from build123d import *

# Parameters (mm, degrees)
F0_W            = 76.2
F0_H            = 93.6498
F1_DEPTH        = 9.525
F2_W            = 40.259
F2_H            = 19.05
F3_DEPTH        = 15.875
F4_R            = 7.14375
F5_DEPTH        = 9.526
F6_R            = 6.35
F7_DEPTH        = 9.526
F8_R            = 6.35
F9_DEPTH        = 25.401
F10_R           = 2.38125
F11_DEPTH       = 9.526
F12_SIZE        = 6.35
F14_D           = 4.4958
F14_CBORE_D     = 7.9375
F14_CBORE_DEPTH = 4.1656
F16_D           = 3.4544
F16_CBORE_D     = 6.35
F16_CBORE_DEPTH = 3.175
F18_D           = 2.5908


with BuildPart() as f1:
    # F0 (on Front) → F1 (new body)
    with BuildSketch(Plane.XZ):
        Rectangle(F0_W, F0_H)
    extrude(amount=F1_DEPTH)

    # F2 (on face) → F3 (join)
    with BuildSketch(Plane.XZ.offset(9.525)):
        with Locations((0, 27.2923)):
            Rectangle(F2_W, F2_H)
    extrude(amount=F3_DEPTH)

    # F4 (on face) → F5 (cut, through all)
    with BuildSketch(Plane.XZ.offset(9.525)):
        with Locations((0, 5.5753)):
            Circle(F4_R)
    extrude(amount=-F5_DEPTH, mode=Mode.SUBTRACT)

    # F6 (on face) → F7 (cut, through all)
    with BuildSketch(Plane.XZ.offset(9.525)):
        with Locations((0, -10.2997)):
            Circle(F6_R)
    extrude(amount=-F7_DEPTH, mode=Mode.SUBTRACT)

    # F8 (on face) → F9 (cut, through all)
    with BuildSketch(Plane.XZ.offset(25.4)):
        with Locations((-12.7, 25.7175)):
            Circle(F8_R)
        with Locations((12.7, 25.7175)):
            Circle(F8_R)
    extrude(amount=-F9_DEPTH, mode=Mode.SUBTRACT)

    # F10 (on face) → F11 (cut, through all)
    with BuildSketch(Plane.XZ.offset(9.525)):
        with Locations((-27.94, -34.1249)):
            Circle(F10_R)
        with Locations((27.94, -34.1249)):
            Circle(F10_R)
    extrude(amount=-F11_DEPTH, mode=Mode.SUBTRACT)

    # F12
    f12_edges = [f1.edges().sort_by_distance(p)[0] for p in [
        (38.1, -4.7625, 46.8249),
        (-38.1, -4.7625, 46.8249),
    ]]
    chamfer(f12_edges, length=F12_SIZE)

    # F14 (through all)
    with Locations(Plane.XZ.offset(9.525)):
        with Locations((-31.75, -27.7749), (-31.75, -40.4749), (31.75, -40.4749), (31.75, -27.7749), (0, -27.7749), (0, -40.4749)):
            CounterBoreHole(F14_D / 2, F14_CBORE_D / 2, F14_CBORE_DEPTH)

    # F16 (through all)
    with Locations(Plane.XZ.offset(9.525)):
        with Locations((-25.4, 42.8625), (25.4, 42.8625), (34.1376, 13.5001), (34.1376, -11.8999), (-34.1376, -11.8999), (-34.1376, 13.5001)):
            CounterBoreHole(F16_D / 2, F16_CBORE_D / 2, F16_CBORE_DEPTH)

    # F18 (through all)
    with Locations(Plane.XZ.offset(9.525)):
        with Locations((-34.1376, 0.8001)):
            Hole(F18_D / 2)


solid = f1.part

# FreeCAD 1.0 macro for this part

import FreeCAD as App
import Part
import Sketcher

V = App.Vector
Q = App.Units.Quantity


def edges_at(feature, points):
    """Names of the edges that pass closest to the given points."""
    edges = feature.Shape.Edges
    near = lambda p: min(range(len(edges)), key=lambda i: edges[i].distToShape(Part.Vertex(*p))[0])
    return sorted({f"Edge{near(p) + 1}" for p in points})


def add_polygon(sketch, points):
    """Adds a closed chain of lines whose ends are joined by coincident constraints."""
    first, n = sketch.GeometryCount, len(points)
    for a, b in zip(points, points[1:] + points[:1]):
        sketch.addGeometry(Part.LineSegment(App.Vector(*a, 0), App.Vector(*b, 0)), False)
    for i in range(n):
        sketch.addConstraint(Sketcher.Constraint("Coincident", first + i, 2, first + (i + 1) % n, 1))

doc = App.newDocument("Part")
params = doc.addObject("Spreadsheet::Sheet", "Params")
for row, (alias, value) in enumerate([
    ("sketch1_width", "3 in"),
    ("sketch1_height", "3.687 in"),
    ("pad1_length", "0.375 in"),
    ("sketch2_height", "0.75 in"),
    ("sketch2_width", "1.585 in"),
    ("pad2_length", "0.625 in"),
    ("sketch3_diameter", "0.5625 in"),
    ("sketch4_diameter", "0.5 in"),
    ("sketch5_diameter", "0.5 in"),
    ("sketch6_diameter", "0.1875 in"),
    ("chamfer_size", "0.25 in"),
    ("sketch7_diameter", "0.177 in"),
    ("hole_diameter", "0.177 in"),
    ("hole_cbore_diameter", "0.3125 in"),
    ("hole_cbore_depth", "0.164 in"),
    ("sketch8_diameter", "0.136 in"),
    ("hole2_diameter", "0.136 in"),
    ("hole2_cbore_diameter", "0.25 in"),
    ("hole2_cbore_depth", "0.125 in"),
    ("sketch9_diameter", "0.102 in"),
    ("hole3_diameter", "0.102 in"),
], start=1):
    params.set(f"A{row}", alias)
    params.set(f"B{row}", "=" + value)
    params.setAlias(f"B{row}", alias)

body = doc.addObject("PartDesign::Body", "Body")

sketch1 = body.newObject("Sketcher::SketchObject", "Sketch")
sketch1.AttachmentSupport = (doc.getObject("XZ_Plane"), [""])
sketch1.MapMode = "FlatFace"
add_polygon(sketch1, [(-38, 47), (-38, -47), (38, -47), (38, 47)])
sketch1.addConstraint([
    Sketcher.Constraint("Vertical", 0),
    Sketcher.Constraint("Horizontal", 1),
    Sketcher.Constraint("Vertical", 2),
    Sketcher.Constraint("Horizontal", 3),
    Sketcher.Constraint("Symmetric", 0, 2, 2, 2, -1, 1),
    Sketcher.Constraint("DistanceX", 1, 1, 1, 2, Q("3 in")),
    Sketcher.Constraint("DistanceY", 0, 2, 0, 1, Q("3.687 in")),
])
sketch1.setExpression("Constraints[9]", "Params.sketch1_width")
sketch1.setExpression("Constraints[10]", "Params.sketch1_height")
pad1 = body.newObject("PartDesign::Pad", "Pad")
pad1.Profile = sketch1
pad1.setExpression("Length", "Params.pad1_length")

sketch2 = body.newObject("Sketcher::SketchObject", "Sketch001")
sketch2.AttachmentSupport = (doc.getObject("XZ_Plane"), [""])
sketch2.MapMode = "FlatFace"
sketch2.AttachmentOffset = App.Placement(V(0, 0, 0.375 * 25.4), App.Rotation())
add_polygon(sketch2, [(-20, 37), (-20, 18), (20, 18), (20, 37)])
sketch2.addConstraint([
    Sketcher.Constraint("Vertical", 0),
    Sketcher.Constraint("Horizontal", 1),
    Sketcher.Constraint("Vertical", 2),
    Sketcher.Constraint("Horizontal", 3),
    Sketcher.Constraint("DistanceY", 0, 2, 0, 1, Q("0.75 in")),
    Sketcher.Constraint("DistanceX", 1, 1, 1, 2, Q("1.585 in")),
    Sketcher.Constraint("DistanceX", 0, 2, -1, 1, Q("0.7925 in")),
    Sketcher.Constraint("DistanceY", -1, 1, 0, 2, Q("0.6995 in")),
])
sketch2.setExpression("Constraints[8]", "Params.sketch2_height")
sketch2.setExpression("Constraints[9]", "Params.sketch2_width")
pad2 = body.newObject("PartDesign::Pad", "Pad001")
pad2.Profile = sketch2
pad2.setExpression("Length", "Params.pad2_length")

sketch3 = body.newObject("Sketcher::SketchObject", "Sketch002")
sketch3.AttachmentSupport = (doc.getObject("XZ_Plane"), [""])
sketch3.MapMode = "FlatFace"
sketch3.AttachmentOffset = App.Placement(V(0, 0, 0.375 * 25.4), App.Rotation())
sketch3.addGeometry(Part.Circle(V(0, 6, 0), V(0, 0, 1), 7), False)
sketch3.addConstraint([
    Sketcher.Constraint("PointOnObject", 0, 3, -2),
    Sketcher.Constraint("Diameter", 0, Q("0.5625 in")),
    Sketcher.Constraint("DistanceY", -1, 1, 0, 3, Q("0.2195 in")),
])
sketch3.setExpression("Constraints[1]", "Params.sketch3_diameter")
pocket1 = body.newObject("PartDesign::Pocket", "Pocket")
pocket1.Profile = sketch3
pocket1.Type = "ThroughAll"

sketch4 = body.newObject("Sketcher::SketchObject", "Sketch003")
sketch4.AttachmentSupport = (doc.getObject("XZ_Plane"), [""])
sketch4.MapMode = "FlatFace"
sketch4.AttachmentOffset = App.Placement(V(0, 0, 0.375 * 25.4), App.Rotation())
sketch4.addGeometry(Part.Circle(V(0, -10, 0), V(0, 0, 1), 6), False)
sketch4.addConstraint([
    Sketcher.Constraint("PointOnObject", 0, 3, -2),
    Sketcher.Constraint("Diameter", 0, Q("0.5 in")),
    Sketcher.Constraint("DistanceY", 0, 3, -1, 1, Q("0.4055 in")),
])
sketch4.setExpression("Constraints[1]", "Params.sketch4_diameter")
pocket2 = body.newObject("PartDesign::Pocket", "Pocket001")
pocket2.Profile = sketch4
pocket2.Type = "ThroughAll"

sketch5 = body.newObject("Sketcher::SketchObject", "Sketch004")
sketch5.AttachmentSupport = (doc.getObject("XZ_Plane"), [""])
sketch5.MapMode = "FlatFace"
sketch5.AttachmentOffset = App.Placement(V(0, 0, 1 * 25.4), App.Rotation())
sketch5.addGeometry([
    Part.Circle(V(-13, 26, 0), V(0, 0, 1), 6),
    Part.Circle(V(13, 26, 0), V(0, 0, 1), 6),
], False)
sketch5.addConstraint([
    Sketcher.Constraint("Equal", 0, 1),
    Sketcher.Constraint("Symmetric", 0, 3, 1, 3, -2),
    Sketcher.Constraint("Diameter", 0, Q("0.5 in")),
    Sketcher.Constraint("DistanceX", 0, 3, 1, 3, Q("1 in")),
    Sketcher.Constraint("DistanceY", -1, 1, 0, 3, Q("1.0125 in")),
])
sketch5.setExpression("Constraints[2]", "Params.sketch5_diameter")
pocket3 = body.newObject("PartDesign::Pocket", "Pocket002")
pocket3.Profile = sketch5
pocket3.Type = "ThroughAll"

sketch6 = body.newObject("Sketcher::SketchObject", "Sketch005")
sketch6.AttachmentSupport = (doc.getObject("XZ_Plane"), [""])
sketch6.MapMode = "FlatFace"
sketch6.AttachmentOffset = App.Placement(V(0, 0, 0.375 * 25.4), App.Rotation())
sketch6.addGeometry([
    Part.Circle(V(-27.9, -34.1, 0), V(0, 0, 1), 2.4),
    Part.Circle(V(27.9, -34.1, 0), V(0, 0, 1), 2.4),
], False)
sketch6.addConstraint([
    Sketcher.Constraint("Equal", 0, 1),
    Sketcher.Constraint("Symmetric", 0, 3, 1, 3, -2),
    Sketcher.Constraint("Diameter", 0, Q("0.1875 in")),
    Sketcher.Constraint("DistanceX", 0, 3, -1, 1, Q("1.1 in")),
    Sketcher.Constraint("DistanceY", 0, 3, -1, 1, Q("1.3435 in")),
])
sketch6.setExpression("Constraints[2]", "Params.sketch6_diameter")
pocket4 = body.newObject("PartDesign::Pocket", "Pocket003")
pocket4.Profile = sketch6
pocket4.Type = "ThroughAll"
doc.recompute()

chamfer = body.newObject("PartDesign::Chamfer", "Chamfer")
chamfer.Base = (pocket4, edges_at(pocket4, [(38.1, -4.763, 46.825), (-38.1, -4.763, 46.825)]))
chamfer.setExpression("Size", "Params.chamfer_size")

sketch7 = body.newObject("Sketcher::SketchObject", "Sketch006")
sketch7.AttachmentSupport = (doc.getObject("XZ_Plane"), [""])
sketch7.MapMode = "FlatFace"
sketch7.AttachmentOffset = App.Placement(V(0, 0, 0.375 * 25.4), App.Rotation())
sketch7.addGeometry([
    Part.Circle(V(-31.8, -27.8, 0), V(0, 0, 1), 2.2),
    Part.Circle(V(-31.8, -40.5, 0), V(0, 0, 1), 2.2),
    Part.Circle(V(31.8, -40.5, 0), V(0, 0, 1), 2.2),
    Part.Circle(V(31.8, -27.8, 0), V(0, 0, 1), 2.2),
    Part.Circle(V(0, -27.8, 0), V(0, 0, 1), 2.2),
    Part.Circle(V(0, -40.5, 0), V(0, 0, 1), 2.2),
], False)
sketch7.addConstraint([
    Sketcher.Constraint("Equal", 0, 1),
    Sketcher.Constraint("Equal", 1, 2),
    Sketcher.Constraint("Equal", 2, 3),
    Sketcher.Constraint("Equal", 3, 4),
    Sketcher.Constraint("Equal", 4, 5),
    Sketcher.Constraint("Symmetric", 1, 3, 2, 3, -2),
    Sketcher.Constraint("Symmetric", 0, 3, 3, 3, -2),
    Sketcher.Constraint("PointOnObject", 4, 3, -2),
    Sketcher.Constraint("PointOnObject", 5, 3, -2),
    Sketcher.Constraint("Horizontal", 3, 3, 4, 3),
    Sketcher.Constraint("Horizontal", 2, 3, 5, 3),
    Sketcher.Constraint("Vertical", 0, 3, 1, 3),
    Sketcher.Constraint("Diameter", 0, Q("0.177 in")),
    Sketcher.Constraint("DistanceY", 1, 3, 0, 3, Q("0.5 in")),
    Sketcher.Constraint("DistanceX", 1, 3, 2, 3, Q("2.5 in")),
    Sketcher.Constraint("DistanceY", 0, 3, -1, 1, Q("1.0935 in")),
])
sketch7.setExpression("Constraints[12]", "Params.sketch7_diameter")
doc.recompute()
hole = body.newObject("PartDesign::Hole", "Hole")
hole.Profile = sketch7
hole.ThreadType = "None"
hole.setExpression("Diameter", "Params.hole_diameter")
hole.DepthType = "ThroughAll"
hole.HoleCutType = "Counterbore"
hole.setExpression("HoleCutDiameter", "Params.hole_cbore_diameter")
hole.setExpression("HoleCutDepth", "Params.hole_cbore_depth")

sketch8 = body.newObject("Sketcher::SketchObject", "Sketch007")
sketch8.AttachmentSupport = (doc.getObject("XZ_Plane"), [""])
sketch8.MapMode = "FlatFace"
sketch8.AttachmentOffset = App.Placement(V(0, 0, 0.375 * 25.4), App.Rotation())
sketch8.addGeometry([
    Part.Circle(V(-25.4, 42.9, 0), V(0, 0, 1), 1.7),
    Part.Circle(V(25.4, 42.9, 0), V(0, 0, 1), 1.7),
    Part.Circle(V(34.1, 13.5, 0), V(0, 0, 1), 1.7),
    Part.Circle(V(34.1, -11.9, 0), V(0, 0, 1), 1.7),
    Part.Circle(V(-34.1, -11.9, 0), V(0, 0, 1), 1.7),
    Part.Circle(V(-34.1, 13.5, 0), V(0, 0, 1), 1.7),
], False)
sketch8.addConstraint([
    Sketcher.Constraint("Equal", 0, 1),
    Sketcher.Constraint("Equal", 1, 2),
    Sketcher.Constraint("Equal", 2, 3),
    Sketcher.Constraint("Equal", 3, 4),
    Sketcher.Constraint("Equal", 4, 5),
    Sketcher.Constraint("Symmetric", 0, 3, 1, 3, -2),
    Sketcher.Constraint("Symmetric", 3, 3, 4, 3, -2),
    Sketcher.Constraint("Symmetric", 2, 3, 5, 3, -2),
    Sketcher.Constraint("Vertical", 2, 3, 3, 3),
    Sketcher.Constraint("Diameter", 0, Q("0.136 in")),
    Sketcher.Constraint("DistanceX", 0, 3, -1, 1, Q("1 in")),
    Sketcher.Constraint("DistanceY", 3, 3, 2, 3, Q("1 in")),
    Sketcher.Constraint("DistanceY", -1, 1, 0, 3, Q("1.6875 in")),
    Sketcher.Constraint("DistanceX", -1, 1, 2, 3, Q("1.344 in")),
    Sketcher.Constraint("DistanceY", 2, 3, 1, 3, Q("1.156 in")),
])
sketch8.setExpression("Constraints[9]", "Params.sketch8_diameter")
doc.recompute()
hole2 = body.newObject("PartDesign::Hole", "Hole001")
hole2.Profile = sketch8
hole2.ThreadType = "None"
hole2.setExpression("Diameter", "Params.hole2_diameter")
hole2.DepthType = "ThroughAll"
hole2.HoleCutType = "Counterbore"
hole2.setExpression("HoleCutDiameter", "Params.hole2_cbore_diameter")
hole2.setExpression("HoleCutDepth", "Params.hole2_cbore_depth")

sketch9 = body.newObject("Sketcher::SketchObject", "Sketch008")
sketch9.AttachmentSupport = (doc.getObject("XZ_Plane"), [""])
sketch9.MapMode = "FlatFace"
sketch9.AttachmentOffset = App.Placement(V(0, 0, 0.375 * 25.4), App.Rotation())
sketch9.addGeometry(Part.Circle(V(-34.1, 0.8, 0), V(0, 0, 1), 1.3), False)
sketch9.addConstraint([
    Sketcher.Constraint("Diameter", 0, Q("0.102 in")),
    Sketcher.Constraint("DistanceX", 0, 3, -1, 1, Q("1.344 in")),
    Sketcher.Constraint("DistanceY", -1, 1, 0, 3, Q("0.0315 in")),
])
sketch9.setExpression("Constraints[0]", "Params.sketch9_diameter")
doc.recompute()
hole3 = body.newObject("PartDesign::Hole", "Hole002")
hole3.Profile = sketch9
hole3.ThreadType = "None"
hole3.setExpression("Diameter", "Params.hole3_diameter")
hole3.DepthType = "ThroughAll"

doc.recompute()
